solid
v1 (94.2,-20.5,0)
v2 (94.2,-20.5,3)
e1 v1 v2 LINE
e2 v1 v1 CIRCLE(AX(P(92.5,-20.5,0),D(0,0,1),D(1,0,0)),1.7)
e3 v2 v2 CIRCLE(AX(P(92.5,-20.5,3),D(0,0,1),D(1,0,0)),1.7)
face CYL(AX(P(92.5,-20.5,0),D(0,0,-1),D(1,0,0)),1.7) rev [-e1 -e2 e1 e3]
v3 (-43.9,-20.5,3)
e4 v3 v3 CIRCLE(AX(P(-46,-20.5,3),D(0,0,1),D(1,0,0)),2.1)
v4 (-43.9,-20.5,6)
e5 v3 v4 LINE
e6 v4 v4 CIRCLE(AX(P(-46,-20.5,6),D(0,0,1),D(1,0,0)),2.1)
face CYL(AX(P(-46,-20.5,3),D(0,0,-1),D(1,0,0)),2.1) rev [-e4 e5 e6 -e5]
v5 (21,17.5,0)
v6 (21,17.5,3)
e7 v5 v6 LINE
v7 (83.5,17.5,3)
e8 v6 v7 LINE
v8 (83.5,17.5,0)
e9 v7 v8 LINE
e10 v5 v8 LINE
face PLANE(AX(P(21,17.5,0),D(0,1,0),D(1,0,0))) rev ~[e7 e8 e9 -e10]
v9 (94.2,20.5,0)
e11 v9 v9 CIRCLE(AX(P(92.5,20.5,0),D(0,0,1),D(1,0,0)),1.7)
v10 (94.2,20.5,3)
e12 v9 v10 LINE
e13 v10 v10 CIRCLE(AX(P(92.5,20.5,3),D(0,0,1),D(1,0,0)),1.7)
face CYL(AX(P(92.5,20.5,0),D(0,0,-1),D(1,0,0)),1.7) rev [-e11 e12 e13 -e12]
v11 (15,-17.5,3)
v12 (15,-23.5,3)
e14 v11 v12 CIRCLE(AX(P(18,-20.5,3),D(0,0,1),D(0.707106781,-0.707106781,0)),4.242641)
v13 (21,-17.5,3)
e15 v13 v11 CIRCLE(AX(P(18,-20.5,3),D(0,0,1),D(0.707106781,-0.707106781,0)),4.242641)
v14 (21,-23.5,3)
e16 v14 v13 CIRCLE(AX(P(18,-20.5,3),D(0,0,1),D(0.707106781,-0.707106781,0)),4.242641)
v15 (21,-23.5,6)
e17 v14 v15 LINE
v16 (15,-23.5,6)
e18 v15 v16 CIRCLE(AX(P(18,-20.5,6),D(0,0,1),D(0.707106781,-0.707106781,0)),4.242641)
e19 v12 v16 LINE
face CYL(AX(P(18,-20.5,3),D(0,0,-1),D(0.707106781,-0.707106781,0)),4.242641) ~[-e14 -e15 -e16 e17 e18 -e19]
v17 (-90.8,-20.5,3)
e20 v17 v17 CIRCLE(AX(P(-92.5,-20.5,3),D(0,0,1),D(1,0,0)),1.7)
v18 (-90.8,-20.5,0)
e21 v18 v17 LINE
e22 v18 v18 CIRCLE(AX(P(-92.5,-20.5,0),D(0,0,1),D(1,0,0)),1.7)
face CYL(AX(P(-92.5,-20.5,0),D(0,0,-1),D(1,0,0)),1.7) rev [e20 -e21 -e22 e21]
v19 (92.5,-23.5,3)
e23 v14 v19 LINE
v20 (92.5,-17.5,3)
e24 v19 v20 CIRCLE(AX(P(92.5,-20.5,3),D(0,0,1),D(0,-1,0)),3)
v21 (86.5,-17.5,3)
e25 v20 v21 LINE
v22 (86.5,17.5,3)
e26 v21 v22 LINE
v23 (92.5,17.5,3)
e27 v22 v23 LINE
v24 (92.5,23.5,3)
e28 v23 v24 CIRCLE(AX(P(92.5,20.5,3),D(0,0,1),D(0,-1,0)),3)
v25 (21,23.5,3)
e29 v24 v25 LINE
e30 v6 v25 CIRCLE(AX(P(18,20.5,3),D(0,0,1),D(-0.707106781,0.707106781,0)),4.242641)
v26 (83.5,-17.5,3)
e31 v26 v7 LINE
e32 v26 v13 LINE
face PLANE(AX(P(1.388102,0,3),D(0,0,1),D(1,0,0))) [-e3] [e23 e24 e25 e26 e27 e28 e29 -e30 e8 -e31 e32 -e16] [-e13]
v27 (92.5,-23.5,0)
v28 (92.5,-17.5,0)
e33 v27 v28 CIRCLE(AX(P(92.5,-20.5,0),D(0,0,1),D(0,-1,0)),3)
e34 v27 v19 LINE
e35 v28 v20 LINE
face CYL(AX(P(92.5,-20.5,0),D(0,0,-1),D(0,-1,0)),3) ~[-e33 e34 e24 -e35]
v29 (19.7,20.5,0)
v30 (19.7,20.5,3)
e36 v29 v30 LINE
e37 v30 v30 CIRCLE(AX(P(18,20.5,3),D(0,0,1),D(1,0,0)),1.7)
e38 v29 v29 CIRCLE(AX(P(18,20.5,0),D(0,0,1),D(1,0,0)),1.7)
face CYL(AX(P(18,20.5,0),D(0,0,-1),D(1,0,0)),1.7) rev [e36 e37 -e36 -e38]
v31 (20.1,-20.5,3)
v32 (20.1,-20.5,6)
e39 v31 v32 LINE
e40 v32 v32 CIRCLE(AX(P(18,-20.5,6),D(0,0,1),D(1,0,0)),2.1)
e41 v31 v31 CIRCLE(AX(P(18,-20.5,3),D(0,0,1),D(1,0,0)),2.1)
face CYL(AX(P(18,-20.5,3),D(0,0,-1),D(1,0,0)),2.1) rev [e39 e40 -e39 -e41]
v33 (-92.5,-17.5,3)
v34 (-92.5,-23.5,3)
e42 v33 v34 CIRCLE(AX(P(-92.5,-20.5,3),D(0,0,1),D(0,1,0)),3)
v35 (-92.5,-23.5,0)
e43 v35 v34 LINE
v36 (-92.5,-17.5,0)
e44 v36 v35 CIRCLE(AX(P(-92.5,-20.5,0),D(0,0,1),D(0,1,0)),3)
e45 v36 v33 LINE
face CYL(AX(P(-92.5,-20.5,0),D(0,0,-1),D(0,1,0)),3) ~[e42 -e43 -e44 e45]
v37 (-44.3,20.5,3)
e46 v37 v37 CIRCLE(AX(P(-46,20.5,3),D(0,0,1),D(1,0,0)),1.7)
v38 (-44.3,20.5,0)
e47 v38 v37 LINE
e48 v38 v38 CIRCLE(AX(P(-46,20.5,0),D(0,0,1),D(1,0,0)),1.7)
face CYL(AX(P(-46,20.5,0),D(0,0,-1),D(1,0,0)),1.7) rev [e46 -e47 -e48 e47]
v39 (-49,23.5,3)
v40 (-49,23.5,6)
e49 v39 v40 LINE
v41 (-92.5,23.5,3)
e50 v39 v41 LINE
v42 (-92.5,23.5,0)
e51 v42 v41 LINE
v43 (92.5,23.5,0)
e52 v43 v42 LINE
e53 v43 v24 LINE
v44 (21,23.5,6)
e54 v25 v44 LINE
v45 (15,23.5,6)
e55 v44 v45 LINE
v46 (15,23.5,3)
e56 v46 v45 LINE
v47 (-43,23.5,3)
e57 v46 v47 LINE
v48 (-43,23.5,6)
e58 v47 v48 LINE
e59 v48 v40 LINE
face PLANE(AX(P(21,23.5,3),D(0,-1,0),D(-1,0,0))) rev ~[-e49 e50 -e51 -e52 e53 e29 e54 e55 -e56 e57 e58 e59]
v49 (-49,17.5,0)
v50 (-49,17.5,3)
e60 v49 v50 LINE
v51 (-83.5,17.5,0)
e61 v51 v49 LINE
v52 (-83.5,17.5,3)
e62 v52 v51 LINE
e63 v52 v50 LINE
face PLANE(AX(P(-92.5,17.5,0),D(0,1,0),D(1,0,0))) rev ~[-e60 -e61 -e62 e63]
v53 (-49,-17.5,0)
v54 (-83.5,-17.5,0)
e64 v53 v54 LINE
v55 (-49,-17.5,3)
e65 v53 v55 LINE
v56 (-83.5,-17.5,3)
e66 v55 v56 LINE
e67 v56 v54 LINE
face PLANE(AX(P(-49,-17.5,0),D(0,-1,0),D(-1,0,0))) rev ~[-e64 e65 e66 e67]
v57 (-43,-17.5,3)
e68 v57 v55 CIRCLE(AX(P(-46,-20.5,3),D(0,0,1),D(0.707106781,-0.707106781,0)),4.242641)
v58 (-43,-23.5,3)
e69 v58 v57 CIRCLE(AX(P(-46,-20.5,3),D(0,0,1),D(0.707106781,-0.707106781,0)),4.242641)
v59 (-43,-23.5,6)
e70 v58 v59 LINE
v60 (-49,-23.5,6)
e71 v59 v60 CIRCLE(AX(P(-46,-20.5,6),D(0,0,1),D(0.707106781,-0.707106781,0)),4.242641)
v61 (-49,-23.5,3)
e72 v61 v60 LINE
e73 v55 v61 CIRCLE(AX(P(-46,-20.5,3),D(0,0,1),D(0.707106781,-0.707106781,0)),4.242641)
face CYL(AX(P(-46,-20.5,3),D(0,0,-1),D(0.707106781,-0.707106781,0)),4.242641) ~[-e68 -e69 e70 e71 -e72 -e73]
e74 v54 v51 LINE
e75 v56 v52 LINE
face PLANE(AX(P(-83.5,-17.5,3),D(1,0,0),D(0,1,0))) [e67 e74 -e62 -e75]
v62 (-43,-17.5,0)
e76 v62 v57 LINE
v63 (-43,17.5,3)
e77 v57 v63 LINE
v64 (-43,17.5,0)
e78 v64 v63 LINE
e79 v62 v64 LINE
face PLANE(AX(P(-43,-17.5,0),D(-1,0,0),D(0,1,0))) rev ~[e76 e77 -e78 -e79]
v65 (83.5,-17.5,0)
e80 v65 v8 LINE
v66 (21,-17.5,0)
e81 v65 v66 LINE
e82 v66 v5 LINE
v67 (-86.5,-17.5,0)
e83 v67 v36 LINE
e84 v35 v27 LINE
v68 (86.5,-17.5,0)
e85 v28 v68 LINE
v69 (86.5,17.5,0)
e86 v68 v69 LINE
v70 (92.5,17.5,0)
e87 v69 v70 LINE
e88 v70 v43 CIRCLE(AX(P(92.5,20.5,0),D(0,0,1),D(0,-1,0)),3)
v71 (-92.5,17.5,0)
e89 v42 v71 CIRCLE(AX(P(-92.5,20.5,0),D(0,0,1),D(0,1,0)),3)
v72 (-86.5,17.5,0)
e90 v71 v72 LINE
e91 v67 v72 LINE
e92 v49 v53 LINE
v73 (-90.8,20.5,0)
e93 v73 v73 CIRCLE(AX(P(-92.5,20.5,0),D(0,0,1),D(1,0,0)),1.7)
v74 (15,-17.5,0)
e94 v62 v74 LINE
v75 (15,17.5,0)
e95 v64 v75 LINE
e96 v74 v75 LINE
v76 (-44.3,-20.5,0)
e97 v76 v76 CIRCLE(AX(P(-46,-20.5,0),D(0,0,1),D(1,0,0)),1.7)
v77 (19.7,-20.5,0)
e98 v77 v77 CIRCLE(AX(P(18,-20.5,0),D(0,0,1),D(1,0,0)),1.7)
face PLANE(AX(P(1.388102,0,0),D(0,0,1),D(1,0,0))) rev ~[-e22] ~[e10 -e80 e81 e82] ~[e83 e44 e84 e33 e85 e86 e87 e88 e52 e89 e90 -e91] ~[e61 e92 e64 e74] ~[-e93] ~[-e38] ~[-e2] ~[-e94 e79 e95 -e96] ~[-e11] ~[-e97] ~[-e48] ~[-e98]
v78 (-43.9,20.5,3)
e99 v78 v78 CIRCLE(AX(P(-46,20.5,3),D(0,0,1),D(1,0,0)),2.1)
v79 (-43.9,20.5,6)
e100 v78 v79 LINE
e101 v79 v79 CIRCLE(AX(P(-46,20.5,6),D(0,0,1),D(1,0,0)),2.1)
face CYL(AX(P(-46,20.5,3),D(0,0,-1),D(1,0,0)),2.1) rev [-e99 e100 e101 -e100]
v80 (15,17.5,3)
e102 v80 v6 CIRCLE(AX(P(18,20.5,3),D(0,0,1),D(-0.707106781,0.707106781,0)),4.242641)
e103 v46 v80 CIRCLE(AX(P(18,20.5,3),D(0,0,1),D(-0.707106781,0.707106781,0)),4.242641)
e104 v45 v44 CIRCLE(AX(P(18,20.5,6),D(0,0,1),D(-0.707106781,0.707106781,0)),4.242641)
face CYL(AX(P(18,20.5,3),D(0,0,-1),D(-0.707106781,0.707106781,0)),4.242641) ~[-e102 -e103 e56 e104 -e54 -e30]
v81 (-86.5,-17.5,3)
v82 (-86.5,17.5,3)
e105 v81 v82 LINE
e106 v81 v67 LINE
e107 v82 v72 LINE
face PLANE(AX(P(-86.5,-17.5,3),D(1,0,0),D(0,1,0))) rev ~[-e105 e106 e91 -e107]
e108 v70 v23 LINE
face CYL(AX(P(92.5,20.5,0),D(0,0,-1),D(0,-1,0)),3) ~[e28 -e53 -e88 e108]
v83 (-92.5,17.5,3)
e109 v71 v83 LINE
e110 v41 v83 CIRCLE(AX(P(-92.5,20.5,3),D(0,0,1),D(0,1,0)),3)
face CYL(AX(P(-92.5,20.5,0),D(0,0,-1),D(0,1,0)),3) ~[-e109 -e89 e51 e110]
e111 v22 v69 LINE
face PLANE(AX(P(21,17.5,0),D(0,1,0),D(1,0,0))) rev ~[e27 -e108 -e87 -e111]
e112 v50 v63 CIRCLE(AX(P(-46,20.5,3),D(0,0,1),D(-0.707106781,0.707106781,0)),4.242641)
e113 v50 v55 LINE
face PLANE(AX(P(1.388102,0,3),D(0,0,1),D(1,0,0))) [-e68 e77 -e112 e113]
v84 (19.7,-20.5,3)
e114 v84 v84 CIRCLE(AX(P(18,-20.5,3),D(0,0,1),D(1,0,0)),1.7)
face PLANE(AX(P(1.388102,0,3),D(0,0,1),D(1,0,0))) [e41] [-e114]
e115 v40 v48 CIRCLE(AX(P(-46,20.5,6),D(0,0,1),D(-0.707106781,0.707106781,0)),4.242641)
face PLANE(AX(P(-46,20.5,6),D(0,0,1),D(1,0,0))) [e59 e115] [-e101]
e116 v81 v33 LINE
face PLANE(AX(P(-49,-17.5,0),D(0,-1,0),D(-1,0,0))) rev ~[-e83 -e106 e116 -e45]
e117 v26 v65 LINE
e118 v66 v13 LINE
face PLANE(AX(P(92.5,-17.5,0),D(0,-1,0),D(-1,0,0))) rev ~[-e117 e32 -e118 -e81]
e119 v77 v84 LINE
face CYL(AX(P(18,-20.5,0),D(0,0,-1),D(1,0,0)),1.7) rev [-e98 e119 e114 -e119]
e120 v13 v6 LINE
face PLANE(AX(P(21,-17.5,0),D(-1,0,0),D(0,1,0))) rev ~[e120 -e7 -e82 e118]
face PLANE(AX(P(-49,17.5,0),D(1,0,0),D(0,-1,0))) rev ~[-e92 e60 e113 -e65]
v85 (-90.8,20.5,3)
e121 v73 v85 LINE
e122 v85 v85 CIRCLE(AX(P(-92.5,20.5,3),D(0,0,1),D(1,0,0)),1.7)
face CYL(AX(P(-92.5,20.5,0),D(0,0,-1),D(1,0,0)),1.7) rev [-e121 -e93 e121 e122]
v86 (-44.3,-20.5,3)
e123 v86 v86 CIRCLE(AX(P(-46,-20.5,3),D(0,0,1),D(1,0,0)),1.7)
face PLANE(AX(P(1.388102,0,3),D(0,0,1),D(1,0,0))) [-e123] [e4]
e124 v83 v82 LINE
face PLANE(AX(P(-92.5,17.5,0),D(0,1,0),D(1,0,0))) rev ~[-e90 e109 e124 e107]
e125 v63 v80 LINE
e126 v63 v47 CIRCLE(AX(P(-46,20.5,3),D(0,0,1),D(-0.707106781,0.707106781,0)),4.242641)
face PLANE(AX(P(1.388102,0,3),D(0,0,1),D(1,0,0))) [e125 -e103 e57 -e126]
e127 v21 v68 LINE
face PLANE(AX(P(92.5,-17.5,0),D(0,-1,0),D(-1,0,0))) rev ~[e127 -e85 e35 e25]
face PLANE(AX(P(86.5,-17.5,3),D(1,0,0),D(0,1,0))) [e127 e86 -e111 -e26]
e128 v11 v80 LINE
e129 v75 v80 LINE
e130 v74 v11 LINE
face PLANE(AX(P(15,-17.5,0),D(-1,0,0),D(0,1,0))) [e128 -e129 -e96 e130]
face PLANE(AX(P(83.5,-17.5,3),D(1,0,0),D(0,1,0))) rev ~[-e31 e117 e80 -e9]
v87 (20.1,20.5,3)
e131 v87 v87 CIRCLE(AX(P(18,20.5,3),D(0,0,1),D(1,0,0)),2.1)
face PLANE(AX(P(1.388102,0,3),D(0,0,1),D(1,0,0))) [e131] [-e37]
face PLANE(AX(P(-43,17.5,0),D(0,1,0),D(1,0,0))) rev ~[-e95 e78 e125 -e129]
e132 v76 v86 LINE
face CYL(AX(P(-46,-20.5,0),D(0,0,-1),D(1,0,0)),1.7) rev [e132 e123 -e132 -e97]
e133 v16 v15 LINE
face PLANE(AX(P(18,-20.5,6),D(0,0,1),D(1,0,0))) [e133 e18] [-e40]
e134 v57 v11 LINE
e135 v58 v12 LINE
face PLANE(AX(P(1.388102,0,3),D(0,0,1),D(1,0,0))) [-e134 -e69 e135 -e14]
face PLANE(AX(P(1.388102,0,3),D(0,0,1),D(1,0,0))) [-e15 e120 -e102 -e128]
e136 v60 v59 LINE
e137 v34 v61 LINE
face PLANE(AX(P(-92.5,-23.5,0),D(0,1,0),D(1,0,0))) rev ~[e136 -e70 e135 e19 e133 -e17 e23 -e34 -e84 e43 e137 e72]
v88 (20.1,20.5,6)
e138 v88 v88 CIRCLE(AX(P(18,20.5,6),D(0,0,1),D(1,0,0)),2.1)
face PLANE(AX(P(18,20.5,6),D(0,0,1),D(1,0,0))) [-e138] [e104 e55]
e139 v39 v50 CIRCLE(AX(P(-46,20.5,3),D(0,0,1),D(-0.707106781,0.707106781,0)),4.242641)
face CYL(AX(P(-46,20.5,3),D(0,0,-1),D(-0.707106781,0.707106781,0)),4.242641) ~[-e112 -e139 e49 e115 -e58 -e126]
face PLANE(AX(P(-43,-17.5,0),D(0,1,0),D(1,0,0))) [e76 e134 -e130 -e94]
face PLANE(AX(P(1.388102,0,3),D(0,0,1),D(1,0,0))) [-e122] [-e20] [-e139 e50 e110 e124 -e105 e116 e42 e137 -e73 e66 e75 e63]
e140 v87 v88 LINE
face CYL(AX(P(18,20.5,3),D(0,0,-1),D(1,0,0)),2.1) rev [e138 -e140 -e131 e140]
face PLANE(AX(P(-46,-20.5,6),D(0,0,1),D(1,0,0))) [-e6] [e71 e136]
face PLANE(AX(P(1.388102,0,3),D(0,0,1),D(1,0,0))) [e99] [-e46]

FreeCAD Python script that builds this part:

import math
import FreeCAD as App
import Part
import Sketcher

V = App.Vector


def add_polygon(sketch, points):
    """Adds a closed chain of lines whose ends are joined by coincident constraints."""
    first, n = sketch.GeometryCount, len(points)
    for a, b in zip(points, points[1:] + points[:1]):
        sketch.addGeometry(Part.LineSegment(App.Vector(*a, 0), App.Vector(*b, 0)), False)
    for i in range(n):
        sketch.addConstraint(Sketcher.Constraint("Coincident", first + i, 2, first + (i + 1) % n, 1))

doc = App.newDocument("Part")
body = doc.addObject("PartDesign::Body", "Body")

# Sketch on XY plane
sketch1 = body.newObject("Sketcher::SketchObject", "Sketch")
sketch1.AttachmentSupport = (doc.getObject("XY_Plane"), [""])
sketch1.MapMode = "FlatFace"
sketch1.addGeometry(Part.LineSegment(V(92.5, 23.5, 0), V(-92.5, 23.5, 0)), False)  # 0
sketch1.addGeometry(Part.ArcOfCircle(Part.Circle(V(-92.5, 20.5, 0), V(0, 0, 1), 3), math.radians(90), math.radians(270)), False)  # 1
sketch1.addGeometry(Part.LineSegment(V(-92.5, 17.5, 0), V(-49, 17.5, 0)), False)  # 2
sketch1.addGeometry(Part.LineSegment(V(-49, 17.5, 0), V(-49, -17.5, 0)), False)  # 3
sketch1.addGeometry(Part.LineSegment(V(-49, -17.5, 0), V(-92.5, -17.5, 0)), False)  # 4
sketch1.addGeometry(Part.ArcOfCircle(Part.Circle(V(-92.5, -20.5, 0), V(0, 0, 1), 3), math.radians(90), math.radians(270)), False)  # 5
sketch1.addGeometry(Part.LineSegment(V(-92.5, -23.5, 0), V(92.5, -23.5, 0)), False)  # 6
sketch1.addGeometry(Part.ArcOfCircle(Part.Circle(V(92.5, -20.5, 0), V(0, 0, 1), 3), math.radians(-90), math.radians(90)), False)  # 7
sketch1.addGeometry(Part.LineSegment(V(92.5, -17.5, 0), V(21, -17.5, 0)), False)  # 8
sketch1.addGeometry(Part.LineSegment(V(21, -17.5, 0), V(21, 17.5, 0)), False)  # 9
sketch1.addGeometry(Part.LineSegment(V(21, 17.5, 0), V(92.5, 17.5, 0)), False)  # 10
sketch1.addGeometry(Part.ArcOfCircle(Part.Circle(V(92.5, 20.5, 0), V(0, 0, 1), 3), math.radians(-90), math.radians(90)), False)  # 11
sketch1.addGeometry(Part.Circle(V(-92.5, -20.5, 0), V(0, 0, 1), 1.7), False)  # 12
sketch1.addGeometry(Part.Circle(V(-46, -20.5, 0), V(0, 0, 1), 1.7), False)  # 13
add_polygon(sketch1, [(15, -17.5), (-43, -17.5), (-43, 17.5), (15, 17.5)])  # lines 14-17
sketch1.addGeometry(Part.Circle(V(18, -20.5, 0), V(0, 0, 1), 1.7), False)  # 18
sketch1.addGeometry(Part.Circle(V(92.5, -20.5, 0), V(0, 0, 1), 1.7), False)  # 19
sketch1.addGeometry(Part.Circle(V(-92.5, 20.5, 0), V(0, 0, 1), 1.7), False)  # 20
sketch1.addGeometry(Part.Circle(V(-46, 20.5, 0), V(0, 0, 1), 1.7), False)  # 21
sketch1.addGeometry(Part.Circle(V(18, 20.5, 0), V(0, 0, 1), 1.7), False)  # 22
sketch1.addGeometry(Part.Circle(V(92.5, 20.5, 0), V(0, 0, 1), 1.7), False)  # 23
sketch1.addConstraint([
    Sketcher.Constraint("Tangent", 0, 2, 1, 1),
    Sketcher.Constraint("Tangent", 1, 2, 2, 1),
    Sketcher.Constraint("Coincident", 2, 2, 3, 1),
    Sketcher.Constraint("Coincident", 3, 2, 4, 1),
    Sketcher.Constraint("Tangent", 4, 2, 5, 1),
    Sketcher.Constraint("Tangent", 5, 2, 6, 1),
    Sketcher.Constraint("Tangent", 6, 2, 7, 1),
    Sketcher.Constraint("Tangent", 7, 2, 8, 1),
    Sketcher.Constraint("Coincident", 8, 2, 9, 1),
    Sketcher.Constraint("Coincident", 9, 2, 10, 1),
    Sketcher.Constraint("Tangent", 10, 2, 11, 1),
    Sketcher.Constraint("Tangent", 11, 2, 0, 1),
    Sketcher.Constraint("Horizontal", 0),
    Sketcher.Constraint("Horizontal", 2),
    Sketcher.Constraint("Vertical", 3),
    Sketcher.Constraint("Horizontal", 4),
    Sketcher.Constraint("Horizontal", 6),
    Sketcher.Constraint("Horizontal", 8),
    Sketcher.Constraint("Vertical", 9),
    Sketcher.Constraint("Horizontal", 10),
    Sketcher.Constraint("Horizontal", 14),
    Sketcher.Constraint("Vertical", 15),
    Sketcher.Constraint("Horizontal", 16),
    Sketcher.Constraint("Vertical", 17),
    Sketcher.Constraint("Coincident", 12, 3, 5, 3),
    Sketcher.Constraint("Coincident", 19, 3, 7, 3),
    Sketcher.Constraint("Coincident", 20, 3, 1, 3),
    Sketcher.Constraint("Coincident", 23, 3, 11, 3),
    Sketcher.Constraint("Equal", 1, 5),
    Sketcher.Constraint("Equal", 5, 7),
    Sketcher.Constraint("Equal", 7, 11),
    Sketcher.Constraint("Equal", 12, 13),
    Sketcher.Constraint("Equal", 13, 18),
    Sketcher.Constraint("Equal", 18, 19),
    Sketcher.Constraint("Equal", 19, 20),
    Sketcher.Constraint("Equal", 20, 21),
    Sketcher.Constraint("Equal", 21, 22),
    Sketcher.Constraint("Equal", 22, 23),
    Sketcher.Constraint("Symmetric", 1, 3, 7, 3, -1, 1),
    Sketcher.Constraint("Symmetric", 13, 3, 21, 3, -1),
    Sketcher.Constraint("Symmetric", 18, 3, 22, 3, -1),
    Sketcher.Constraint("Horizontal", 12, 3, 13, 3),
    Sketcher.Constraint("Horizontal", 13, 3, 18, 3),
    Sketcher.Constraint("Horizontal", 8, 2, 14, 2),
    Sketcher.Constraint("Horizontal", 10, 2, 15, 2),
    Sketcher.Constraint("Vertical", 1, 3, 5, 3),
    Sketcher.Constraint("Vertical", 7, 3, 11, 3),
    Sketcher.Constraint("Radius", 1, 3.0),
    Sketcher.Constraint("Diameter", 12, 3.4),
    Sketcher.Constraint("DistanceX", 0, 2, 0, 1, 185.0),
    Sketcher.Constraint("DistanceX", 14, 2, 14, 1, 58.0),
    Sketcher.Constraint("DistanceY", 3, 2, 3, 1, 35.0),
    Sketcher.Constraint("DistanceX", 2, 1, 2, 2, 43.5),
    Sketcher.Constraint("DistanceX", 8, 2, 8, 1, 71.5),
    Sketcher.Constraint("DistanceX", 13, 3, -1, 1, 46.0),
    Sketcher.Constraint("DistanceX", -1, 1, 18, 3, 18.0),
    Sketcher.Constraint("DistanceX", 14, 2, -1, 1, 43.0),
])
pad1 = body.newObject("PartDesign::Pad", "Pad")
pad1.Profile = sketch1
pad1.Length = 3

# Sketch on XY plane
sketch2 = body.newObject("Sketcher::SketchObject", "Sketch001")
sketch2.AttachmentSupport = (doc.getObject("XY_Plane"), [""])
sketch2.MapMode = "FlatFace"
sketch2.AttachmentOffset = App.Placement(V(0, 0, 3), App.Rotation())
sketch2.addGeometry([
    Part.LineSegment(V(21, 23.5, 0), V(15, 23.5, 0)),  # 0
    Part.ArcOfCircle(Part.Circle(V(18, 20.5, 0), V(0, 0, 1), 4.242641), math.radians(135), math.radians(405)),  # 1
    Part.Circle(V(18, 20.5, 0), V(0, 0, 1), 2.1),  # 2
    Part.LineSegment(V(-49, -23.5, 0), V(-43, -23.5, 0)),  # 3
    Part.ArcOfCircle(Part.Circle(V(-46, -20.5, 0), V(0, 0, 1), 4.242641), math.radians(-45), math.radians(225)),  # 4
    Part.Circle(V(-46, -20.5, 0), V(0, 0, 1), 2.1),  # 5
    Part.LineSegment(V(-43, 23.5, 0), V(-49, 23.5, 0)),  # 6
    Part.ArcOfCircle(Part.Circle(V(-46, 20.5, 0), V(0, 0, 1), 4.242641), math.radians(135), math.radians(405)),  # 7
    Part.Circle(V(-46, 20.5, 0), V(0, 0, 1), 2.1),  # 8
    Part.LineSegment(V(15, -23.5, 0), V(21, -23.5, 0)),  # 9
    Part.ArcOfCircle(Part.Circle(V(18, -20.5, 0), V(0, 0, 1), 4.242641), math.radians(-45), math.radians(225)),  # 10
    Part.Circle(V(18, -20.5, 0), V(0, 0, 1), 2.1),  # 11
], False)
sketch2.addConstraint([
    Sketcher.Constraint("Coincident", 0, 1, 1, 2),
    Sketcher.Constraint("Coincident", 1, 1, 0, 2),
    Sketcher.Constraint("Coincident", 3, 1, 4, 2),
    Sketcher.Constraint("Coincident", 4, 1, 3, 2),
    Sketcher.Constraint("Coincident", 6, 1, 7, 2),
    Sketcher.Constraint("Coincident", 7, 1, 6, 2),
    Sketcher.Constraint("Coincident", 9, 1, 10, 2),
    Sketcher.Constraint("Coincident", 10, 1, 9, 2),
    Sketcher.Constraint("Horizontal", 0),
    Sketcher.Constraint("Horizontal", 3),
    Sketcher.Constraint("Horizontal", 6),
    Sketcher.Constraint("Horizontal", 9),
    Sketcher.Constraint("Coincident", 2, 3, 1, 3),
    Sketcher.Constraint("Coincident", 5, 3, 4, 3),
    Sketcher.Constraint("Coincident", 8, 3, 7, 3),
    Sketcher.Constraint("Coincident", 11, 3, 10, 3),
    Sketcher.Constraint("Equal", 1, 4),
    Sketcher.Constraint("Equal", 2, 5),
    Sketcher.Constraint("Equal", 4, 7),
    Sketcher.Constraint("Equal", 5, 8),
    Sketcher.Constraint("Equal", 7, 10),
    Sketcher.Constraint("Equal", 8, 11),
    Sketcher.Constraint("Symmetric", 4, 3, 7, 3, -1),
    Sketcher.Constraint("Symmetric", 1, 3, 10, 3, -1),
    Sketcher.Constraint("Horizontal", 2, 3, 7, 3),
    Sketcher.Constraint("Horizontal", 1, 1, 6, 1),
    Sketcher.Constraint("Horizontal", 4, 1, 9, 1),
    Sketcher.Constraint("Vertical", 4, 1, 6, 1),
    Sketcher.Constraint("Diameter", 2, 4.2),
    Sketcher.Constraint("DistanceX", 0, 2, 0, 1, 6.0),
    Sketcher.Constraint("DistanceX", -1, 1, 1, 3, 18.0),
    Sketcher.Constraint("DistanceX", 4, 3, -1, 1, 46.0),
    Sketcher.Constraint("DistanceY", 4, 3, 1, 3, 41.0),
    Sketcher.Constraint("DistanceY", 1, 3, 0, 1, 3.0),
])
pad2 = body.newObject("PartDesign::Pad", "Pad001")
pad2.Profile = sketch2
pad2.Length = 3

# Sketch on XY plane
sketch3 = body.newObject("Sketcher::SketchObject", "Sketch002")
sketch3.AttachmentSupport = (doc.getObject("XY_Plane"), [""])
sketch3.MapMode = "FlatFace"
sketch3.AttachmentOffset = App.Placement(V(0, 0, 3), App.Rotation())
add_polygon(sketch3, [(-86.5, 17.5), (-86.5, -17.5), (-83.5, -17.5), (-83.5, 17.5)])  # lines 0-3
add_polygon(sketch3, [(83.5, 17.5), (83.5, -17.5), (86.5, -17.5), (86.5, 17.5)])  # lines 4-7
sketch3.addConstraint([
    Sketcher.Constraint("Vertical", 0),
    Sketcher.Constraint("Horizontal", 1),
    Sketcher.Constraint("Vertical", 2),
    Sketcher.Constraint("Horizontal", 3),
    Sketcher.Constraint("Vertical", 4),
    Sketcher.Constraint("Horizontal", 5),
    Sketcher.Constraint("Vertical", 6),
    Sketcher.Constraint("Horizontal", 7),
    Sketcher.Constraint("Symmetric", 2, 2, 4, 2, -1, 1),
    Sketcher.Constraint("Symmetric", 0, 2, 6, 2, -1, 1),
    Sketcher.Constraint("Horizontal", 1, 2, 4, 2),
    Sketcher.Constraint("DistanceX", 1, 1, 1, 2, 3.0),
    Sketcher.Constraint("DistanceY", 0, 2, 0, 1, 35.0),
    Sketcher.Constraint("DistanceX", 1, 2, 4, 2, 167.0),
])
pad3 = body.newObject("PartDesign::Pad", "Pad002")
pad3.Profile = sketch3
pad3.Length = 3
pad3.Reversed = True

doc.recompute()
